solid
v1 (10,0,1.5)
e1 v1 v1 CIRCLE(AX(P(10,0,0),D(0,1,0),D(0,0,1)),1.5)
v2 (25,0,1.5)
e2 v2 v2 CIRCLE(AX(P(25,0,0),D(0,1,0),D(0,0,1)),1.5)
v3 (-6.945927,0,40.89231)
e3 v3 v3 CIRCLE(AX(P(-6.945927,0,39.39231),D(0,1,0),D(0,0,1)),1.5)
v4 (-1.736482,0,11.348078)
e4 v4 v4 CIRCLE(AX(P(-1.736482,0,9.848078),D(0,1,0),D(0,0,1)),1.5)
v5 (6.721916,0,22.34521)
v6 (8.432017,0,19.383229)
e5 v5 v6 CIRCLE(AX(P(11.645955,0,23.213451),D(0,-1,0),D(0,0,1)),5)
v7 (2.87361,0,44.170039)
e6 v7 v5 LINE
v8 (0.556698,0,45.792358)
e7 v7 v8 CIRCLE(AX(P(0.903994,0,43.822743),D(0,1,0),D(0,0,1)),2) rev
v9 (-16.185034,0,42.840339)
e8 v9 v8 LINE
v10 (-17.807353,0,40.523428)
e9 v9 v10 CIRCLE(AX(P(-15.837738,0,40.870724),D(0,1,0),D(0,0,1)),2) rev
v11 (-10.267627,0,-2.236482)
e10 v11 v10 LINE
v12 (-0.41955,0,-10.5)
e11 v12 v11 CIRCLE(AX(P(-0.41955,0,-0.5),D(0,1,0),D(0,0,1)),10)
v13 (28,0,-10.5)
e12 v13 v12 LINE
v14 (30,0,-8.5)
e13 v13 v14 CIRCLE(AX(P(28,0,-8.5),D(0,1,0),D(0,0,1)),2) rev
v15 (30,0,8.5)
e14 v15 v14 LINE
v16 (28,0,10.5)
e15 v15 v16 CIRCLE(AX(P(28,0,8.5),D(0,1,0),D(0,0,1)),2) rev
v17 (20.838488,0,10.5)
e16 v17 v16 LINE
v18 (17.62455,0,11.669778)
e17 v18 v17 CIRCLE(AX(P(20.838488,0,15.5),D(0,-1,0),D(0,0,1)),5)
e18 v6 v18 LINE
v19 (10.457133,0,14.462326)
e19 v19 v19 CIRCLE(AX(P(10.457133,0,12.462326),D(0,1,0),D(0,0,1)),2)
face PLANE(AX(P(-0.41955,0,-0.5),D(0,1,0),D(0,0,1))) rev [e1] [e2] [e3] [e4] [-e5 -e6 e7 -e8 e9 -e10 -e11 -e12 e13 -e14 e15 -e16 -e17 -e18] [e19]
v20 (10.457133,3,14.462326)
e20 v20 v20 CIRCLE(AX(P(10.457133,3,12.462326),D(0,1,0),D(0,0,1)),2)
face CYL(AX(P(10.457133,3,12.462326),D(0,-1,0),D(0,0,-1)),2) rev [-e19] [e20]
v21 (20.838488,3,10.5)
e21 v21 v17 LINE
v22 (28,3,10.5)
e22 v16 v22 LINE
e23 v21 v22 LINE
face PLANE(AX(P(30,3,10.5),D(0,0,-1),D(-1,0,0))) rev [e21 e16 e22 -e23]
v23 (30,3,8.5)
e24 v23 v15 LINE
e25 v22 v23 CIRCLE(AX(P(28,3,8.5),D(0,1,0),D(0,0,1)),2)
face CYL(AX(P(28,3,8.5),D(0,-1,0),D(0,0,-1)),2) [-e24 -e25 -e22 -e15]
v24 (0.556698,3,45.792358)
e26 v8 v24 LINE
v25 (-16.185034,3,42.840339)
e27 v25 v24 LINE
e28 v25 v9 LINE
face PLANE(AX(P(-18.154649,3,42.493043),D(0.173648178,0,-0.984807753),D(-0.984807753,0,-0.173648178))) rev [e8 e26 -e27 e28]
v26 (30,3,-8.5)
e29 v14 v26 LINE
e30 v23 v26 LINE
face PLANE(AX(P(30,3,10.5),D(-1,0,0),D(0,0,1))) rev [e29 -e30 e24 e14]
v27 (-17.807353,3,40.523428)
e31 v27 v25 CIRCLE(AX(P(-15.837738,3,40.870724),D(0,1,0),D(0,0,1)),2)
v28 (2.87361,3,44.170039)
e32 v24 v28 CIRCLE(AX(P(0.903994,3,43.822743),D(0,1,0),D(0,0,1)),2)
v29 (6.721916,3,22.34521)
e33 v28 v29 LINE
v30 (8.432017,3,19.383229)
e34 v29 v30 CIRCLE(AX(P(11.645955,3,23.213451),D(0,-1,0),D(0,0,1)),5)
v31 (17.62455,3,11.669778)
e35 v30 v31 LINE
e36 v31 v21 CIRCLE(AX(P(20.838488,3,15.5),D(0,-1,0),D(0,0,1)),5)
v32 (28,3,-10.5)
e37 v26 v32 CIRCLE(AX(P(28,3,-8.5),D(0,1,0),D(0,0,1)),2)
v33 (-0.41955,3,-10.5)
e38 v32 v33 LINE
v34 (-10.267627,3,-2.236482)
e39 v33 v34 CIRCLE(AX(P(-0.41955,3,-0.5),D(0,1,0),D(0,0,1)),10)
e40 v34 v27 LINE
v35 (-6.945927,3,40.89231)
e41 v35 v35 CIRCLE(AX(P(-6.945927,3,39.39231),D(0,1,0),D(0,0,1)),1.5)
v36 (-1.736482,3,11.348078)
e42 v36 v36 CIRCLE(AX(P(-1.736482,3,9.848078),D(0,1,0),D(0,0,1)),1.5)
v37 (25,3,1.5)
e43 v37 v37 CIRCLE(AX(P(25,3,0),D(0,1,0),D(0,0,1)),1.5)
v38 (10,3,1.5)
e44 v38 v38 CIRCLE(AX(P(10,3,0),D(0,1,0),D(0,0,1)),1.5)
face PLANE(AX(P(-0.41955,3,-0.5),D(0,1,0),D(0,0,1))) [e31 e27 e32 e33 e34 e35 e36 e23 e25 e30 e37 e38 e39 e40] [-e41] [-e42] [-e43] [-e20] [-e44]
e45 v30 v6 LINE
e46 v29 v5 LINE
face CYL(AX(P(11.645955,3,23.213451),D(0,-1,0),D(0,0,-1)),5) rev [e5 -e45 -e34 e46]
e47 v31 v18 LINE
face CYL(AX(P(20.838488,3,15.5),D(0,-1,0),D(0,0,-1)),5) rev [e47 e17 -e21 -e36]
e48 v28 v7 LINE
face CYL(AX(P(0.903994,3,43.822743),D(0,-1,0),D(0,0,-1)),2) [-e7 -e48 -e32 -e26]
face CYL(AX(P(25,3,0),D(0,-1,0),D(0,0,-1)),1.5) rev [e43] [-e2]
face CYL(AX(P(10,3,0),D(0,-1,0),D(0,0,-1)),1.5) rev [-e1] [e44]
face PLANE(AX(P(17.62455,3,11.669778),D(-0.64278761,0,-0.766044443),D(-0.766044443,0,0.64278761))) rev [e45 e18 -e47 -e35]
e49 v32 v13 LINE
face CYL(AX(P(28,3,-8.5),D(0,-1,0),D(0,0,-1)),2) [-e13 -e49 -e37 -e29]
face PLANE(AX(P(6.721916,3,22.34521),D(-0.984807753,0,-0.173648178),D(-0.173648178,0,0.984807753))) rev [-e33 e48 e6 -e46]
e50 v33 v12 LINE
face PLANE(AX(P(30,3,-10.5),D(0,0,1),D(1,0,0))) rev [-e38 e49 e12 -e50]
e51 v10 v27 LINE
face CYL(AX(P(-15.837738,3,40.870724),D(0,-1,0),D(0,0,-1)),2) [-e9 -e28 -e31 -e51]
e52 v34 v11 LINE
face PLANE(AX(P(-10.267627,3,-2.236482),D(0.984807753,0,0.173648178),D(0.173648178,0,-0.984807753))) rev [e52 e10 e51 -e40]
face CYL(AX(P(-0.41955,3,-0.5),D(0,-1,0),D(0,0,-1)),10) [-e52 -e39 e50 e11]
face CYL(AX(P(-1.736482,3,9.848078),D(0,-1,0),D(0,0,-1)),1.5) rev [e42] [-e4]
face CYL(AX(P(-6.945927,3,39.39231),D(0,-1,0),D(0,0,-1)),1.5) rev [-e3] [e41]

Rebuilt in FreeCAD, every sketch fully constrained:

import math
import FreeCAD as App
import Part
import Sketcher
Q = App.Units.Quantity


def edges_at(feature, points):
    """Names of the edges that pass closest to the given points."""
    edges = feature.Shape.Edges
    near = lambda p: min(range(len(edges)), key=lambda i: edges[i].distToShape(Part.Vertex(*p))[0])
    return sorted({f"Edge{near(p) + 1}" for p in points})

doc = App.newDocument("Part")
params = doc.addObject("Spreadsheet::Sheet", "Params")
for row, (alias, value) in enumerate([
    ("sketch1_diameter", "3 mm"),
    ("sketch1_diameter2", "4 mm"),
    ("sketch1_radius", "10 mm"),
    ("sketch1_radius2", "5 mm"),
    ("sketch1_height", "21 mm"),
    ("pad1_length", "3 mm"),
    ("fillet_radius", "2 mm"),
], start=1):
    params.set(f"A{row}", alias)
    params.set(f"B{row}", "=" + value)
    params.setAlias(f"B{row}", alias)

body = doc.addObject("PartDesign::Body", "Body")

# Sketch on XZ plane
sketch1 = doc.addObject("Sketcher::SketchObject", "Sketch")
body.addObject(sketch1)
sketch1.AttachmentSupport = (doc.XZ_Plane, [""])
sketch1.MapMode = "FlatFace"
sketch1.addGeometry(Part.LineSegment(App.Vector(20.8, 10.5, 0), App.Vector(30, 10.5, 0)), False)
sketch1.addGeometry(Part.LineSegment(App.Vector(30, 10.5, 0), App.Vector(30, -10.5, 0)), False)
sketch1.addGeometry(Part.LineSegment(App.Vector(30, -10.5, 0), App.Vector(-0.4, -10.5, 0)), False)
sketch1.addGeometry(Part.ArcOfCircle(Part.Circle(App.Vector(-0.4, -0.5, 0), App.Vector(0, 0, 1), 10), math.radians(-170), math.radians(-90)), False)
sketch1.addGeometry(Part.LineSegment(App.Vector(-10.3, -2.2, 0), App.Vector(-18.2, 42.5, 0)), False)
sketch1.addGeometry(Part.LineSegment(App.Vector(-18.2, 42.5, 0), App.Vector(2.5, 46.1, 0)), False)
sketch1.addGeometry(Part.LineSegment(App.Vector(2.5, 46.1, 0), App.Vector(6.7, 22.3, 0)), False)
sketch1.addGeometry(Part.ArcOfCircle(Part.Circle(App.Vector(11.6, 23.2, 0), App.Vector(0, 0, 1), 5), math.radians(-170), math.radians(-130)), False)
sketch1.addGeometry(Part.LineSegment(App.Vector(8.4, 19.4, 0), App.Vector(17.6, 11.7, 0)), False)
sketch1.addGeometry(Part.ArcOfCircle(Part.Circle(App.Vector(20.8, 15.5, 0), App.Vector(0, 0, 1), 5), math.radians(-130), math.radians(-90)), False)
sketch1.addGeometry(Part.Circle(App.Vector(-6.9, 39.4, 0), App.Vector(0, 0, 1), 1.5), False)
sketch1.addGeometry(Part.Circle(App.Vector(10.5, 12.5, 0), App.Vector(0, 0, 1), 2), False)
sketch1.addGeometry(Part.Circle(App.Vector(25, 0, 0), App.Vector(0, 0, 1), 1.5), False)
sketch1.addGeometry(Part.Circle(App.Vector(10, 0, 0), App.Vector(0, 0, 1), 1.5), False)
sketch1.addGeometry(Part.Circle(App.Vector(-1.7, 9.8, 0), App.Vector(0, 0, 1), 1.5), False)
sketch1.addConstraint(Sketcher.Constraint("Coincident", 0, 2, 1, 1))
sketch1.addConstraint(Sketcher.Constraint("Coincident", 1, 2, 2, 1))
sketch1.addConstraint(Sketcher.Constraint("Tangent", 2, 2, 3, 2))
sketch1.addConstraint(Sketcher.Constraint("Tangent", 3, 1, 4, 1))
sketch1.addConstraint(Sketcher.Constraint("Coincident", 4, 2, 5, 1))
sketch1.addConstraint(Sketcher.Constraint("Coincident", 5, 2, 6, 1))
sketch1.addConstraint(Sketcher.Constraint("Tangent", 6, 2, 7, 1))
sketch1.addConstraint(Sketcher.Constraint("Tangent", 7, 2, 8, 1))
sketch1.addConstraint(Sketcher.Constraint("Tangent", 8, 2, 9, 1))
sketch1.addConstraint(Sketcher.Constraint("Tangent", 9, 2, 0, 1))
sketch1.addConstraint(Sketcher.Constraint("Horizontal", 0))
sketch1.addConstraint(Sketcher.Constraint("Vertical", 1))
sketch1.addConstraint(Sketcher.Constraint("Horizontal", 2))
sketch1.addConstraint(Sketcher.Constraint("Equal", 7, 9))
sketch1.addConstraint(Sketcher.Constraint("Equal", 10, 12))
sketch1.addConstraint(Sketcher.Constraint("Equal", 12, 13))
sketch1.addConstraint(Sketcher.Constraint("Equal", 13, 14))
sketch1.addConstraint(Sketcher.Constraint("PointOnObject", 12, 3, -1))
sketch1.addConstraint(Sketcher.Constraint("PointOnObject", 13, 3, -1))
sketch1.addConstraint(Sketcher.Constraint("Perpendicular", 4, 5))
sketch1.addConstraint(Sketcher.Constraint("Perpendicular", 5, 6))
sketch1.addConstraint(Sketcher.Constraint("Diameter", 10, 3.0))
sketch1.addConstraint(Sketcher.Constraint("Diameter", 11, 4.0))
sketch1.addConstraint(Sketcher.Constraint("Radius", 3, 10.0))
sketch1.addConstraint(Sketcher.Constraint("Radius", 7, 5.0))
sketch1.addConstraint(Sketcher.Constraint("DistanceY", 1, 2, 1, 1, 21.0))
sketch1.addConstraint(Sketcher.Constraint("Angle", 4, Q("100 deg")))
sketch1.addConstraint(Sketcher.Constraint("Angle", 8, Q("-40 deg")))
sketch1.addConstraint(Sketcher.Constraint("Distance", 5, 21.0))
sketch1.addConstraint(Sketcher.Constraint("Distance", 8, 12.0))
sketch1.addConstraint(Sketcher.Constraint("DistanceX", -1, 1, 12, 3, 25.0))
sketch1.addConstraint(Sketcher.Constraint("DistanceX", -1, 1, 13, 3, 10.0))
sketch1.addConstraint(Sketcher.Constraint("DistanceX", -1, 1, 0, 2, 30.0))
sketch1.addConstraint(Sketcher.Constraint("DistanceY", 3, 3, -1, 1, 0.5))
sketch1.addConstraint(Sketcher.Constraint("DistanceX", 0, 1, 0, 2, 9.161512))
sketch1.addConstraint(Sketcher.Constraint("DistanceY", 6, 2, 10, 3, 17.0471))
sketch1.addConstraint(Sketcher.Constraint("DistanceX", 14, 3, 7, 2, 10.168498))
sketch1.addConstraint(Sketcher.Constraint("Distance", 4, 45.41955))
sketch1.addConstraint(Sketcher.Constraint("DistanceX", 10, 3, 7, 3, 18.591882))
sketch1.addConstraint(Sketcher.Constraint("DistanceX", 11, 3, 7, 3, 1.188822))
sketch1.addConstraint(Sketcher.Constraint("DistanceY", 14, 3, 11, 3, 2.614248))
sketch1.addConstraint(Sketcher.Constraint("DistanceY", 3, 1, 14, 3, 12.084559))
sketch1.setExpression("Constraints[21]", "Params.sketch1_diameter")
sketch1.setExpression("Constraints[22]", "Params.sketch1_diameter2")
sketch1.setExpression("Constraints[23]", "Params.sketch1_radius")
sketch1.setExpression("Constraints[24]", "Params.sketch1_radius2")
sketch1.setExpression("Constraints[25]", "Params.sketch1_height")
pad1 = doc.addObject("PartDesign::Pad", "Pad")
body.addObject(pad1)
pad1.Profile = sketch1
pad1.setExpression("Length", "Params.pad1_length")
pad1.Reversed = True
doc.recompute()

fillet = doc.addObject("PartDesign::Fillet", "Fillet")
body.addObject(fillet)
fillet.Base = (pad1, edges_at(pad1, [
    (2.526, 1.5, 46.14),
    (-18.155, 1.5, 42.493),
    (30, 1.5, -10.5),
    (30, 1.5, 10.5),
]))
fillet.setExpression("Radius", "Params.fillet_radius")

doc.recompute()
